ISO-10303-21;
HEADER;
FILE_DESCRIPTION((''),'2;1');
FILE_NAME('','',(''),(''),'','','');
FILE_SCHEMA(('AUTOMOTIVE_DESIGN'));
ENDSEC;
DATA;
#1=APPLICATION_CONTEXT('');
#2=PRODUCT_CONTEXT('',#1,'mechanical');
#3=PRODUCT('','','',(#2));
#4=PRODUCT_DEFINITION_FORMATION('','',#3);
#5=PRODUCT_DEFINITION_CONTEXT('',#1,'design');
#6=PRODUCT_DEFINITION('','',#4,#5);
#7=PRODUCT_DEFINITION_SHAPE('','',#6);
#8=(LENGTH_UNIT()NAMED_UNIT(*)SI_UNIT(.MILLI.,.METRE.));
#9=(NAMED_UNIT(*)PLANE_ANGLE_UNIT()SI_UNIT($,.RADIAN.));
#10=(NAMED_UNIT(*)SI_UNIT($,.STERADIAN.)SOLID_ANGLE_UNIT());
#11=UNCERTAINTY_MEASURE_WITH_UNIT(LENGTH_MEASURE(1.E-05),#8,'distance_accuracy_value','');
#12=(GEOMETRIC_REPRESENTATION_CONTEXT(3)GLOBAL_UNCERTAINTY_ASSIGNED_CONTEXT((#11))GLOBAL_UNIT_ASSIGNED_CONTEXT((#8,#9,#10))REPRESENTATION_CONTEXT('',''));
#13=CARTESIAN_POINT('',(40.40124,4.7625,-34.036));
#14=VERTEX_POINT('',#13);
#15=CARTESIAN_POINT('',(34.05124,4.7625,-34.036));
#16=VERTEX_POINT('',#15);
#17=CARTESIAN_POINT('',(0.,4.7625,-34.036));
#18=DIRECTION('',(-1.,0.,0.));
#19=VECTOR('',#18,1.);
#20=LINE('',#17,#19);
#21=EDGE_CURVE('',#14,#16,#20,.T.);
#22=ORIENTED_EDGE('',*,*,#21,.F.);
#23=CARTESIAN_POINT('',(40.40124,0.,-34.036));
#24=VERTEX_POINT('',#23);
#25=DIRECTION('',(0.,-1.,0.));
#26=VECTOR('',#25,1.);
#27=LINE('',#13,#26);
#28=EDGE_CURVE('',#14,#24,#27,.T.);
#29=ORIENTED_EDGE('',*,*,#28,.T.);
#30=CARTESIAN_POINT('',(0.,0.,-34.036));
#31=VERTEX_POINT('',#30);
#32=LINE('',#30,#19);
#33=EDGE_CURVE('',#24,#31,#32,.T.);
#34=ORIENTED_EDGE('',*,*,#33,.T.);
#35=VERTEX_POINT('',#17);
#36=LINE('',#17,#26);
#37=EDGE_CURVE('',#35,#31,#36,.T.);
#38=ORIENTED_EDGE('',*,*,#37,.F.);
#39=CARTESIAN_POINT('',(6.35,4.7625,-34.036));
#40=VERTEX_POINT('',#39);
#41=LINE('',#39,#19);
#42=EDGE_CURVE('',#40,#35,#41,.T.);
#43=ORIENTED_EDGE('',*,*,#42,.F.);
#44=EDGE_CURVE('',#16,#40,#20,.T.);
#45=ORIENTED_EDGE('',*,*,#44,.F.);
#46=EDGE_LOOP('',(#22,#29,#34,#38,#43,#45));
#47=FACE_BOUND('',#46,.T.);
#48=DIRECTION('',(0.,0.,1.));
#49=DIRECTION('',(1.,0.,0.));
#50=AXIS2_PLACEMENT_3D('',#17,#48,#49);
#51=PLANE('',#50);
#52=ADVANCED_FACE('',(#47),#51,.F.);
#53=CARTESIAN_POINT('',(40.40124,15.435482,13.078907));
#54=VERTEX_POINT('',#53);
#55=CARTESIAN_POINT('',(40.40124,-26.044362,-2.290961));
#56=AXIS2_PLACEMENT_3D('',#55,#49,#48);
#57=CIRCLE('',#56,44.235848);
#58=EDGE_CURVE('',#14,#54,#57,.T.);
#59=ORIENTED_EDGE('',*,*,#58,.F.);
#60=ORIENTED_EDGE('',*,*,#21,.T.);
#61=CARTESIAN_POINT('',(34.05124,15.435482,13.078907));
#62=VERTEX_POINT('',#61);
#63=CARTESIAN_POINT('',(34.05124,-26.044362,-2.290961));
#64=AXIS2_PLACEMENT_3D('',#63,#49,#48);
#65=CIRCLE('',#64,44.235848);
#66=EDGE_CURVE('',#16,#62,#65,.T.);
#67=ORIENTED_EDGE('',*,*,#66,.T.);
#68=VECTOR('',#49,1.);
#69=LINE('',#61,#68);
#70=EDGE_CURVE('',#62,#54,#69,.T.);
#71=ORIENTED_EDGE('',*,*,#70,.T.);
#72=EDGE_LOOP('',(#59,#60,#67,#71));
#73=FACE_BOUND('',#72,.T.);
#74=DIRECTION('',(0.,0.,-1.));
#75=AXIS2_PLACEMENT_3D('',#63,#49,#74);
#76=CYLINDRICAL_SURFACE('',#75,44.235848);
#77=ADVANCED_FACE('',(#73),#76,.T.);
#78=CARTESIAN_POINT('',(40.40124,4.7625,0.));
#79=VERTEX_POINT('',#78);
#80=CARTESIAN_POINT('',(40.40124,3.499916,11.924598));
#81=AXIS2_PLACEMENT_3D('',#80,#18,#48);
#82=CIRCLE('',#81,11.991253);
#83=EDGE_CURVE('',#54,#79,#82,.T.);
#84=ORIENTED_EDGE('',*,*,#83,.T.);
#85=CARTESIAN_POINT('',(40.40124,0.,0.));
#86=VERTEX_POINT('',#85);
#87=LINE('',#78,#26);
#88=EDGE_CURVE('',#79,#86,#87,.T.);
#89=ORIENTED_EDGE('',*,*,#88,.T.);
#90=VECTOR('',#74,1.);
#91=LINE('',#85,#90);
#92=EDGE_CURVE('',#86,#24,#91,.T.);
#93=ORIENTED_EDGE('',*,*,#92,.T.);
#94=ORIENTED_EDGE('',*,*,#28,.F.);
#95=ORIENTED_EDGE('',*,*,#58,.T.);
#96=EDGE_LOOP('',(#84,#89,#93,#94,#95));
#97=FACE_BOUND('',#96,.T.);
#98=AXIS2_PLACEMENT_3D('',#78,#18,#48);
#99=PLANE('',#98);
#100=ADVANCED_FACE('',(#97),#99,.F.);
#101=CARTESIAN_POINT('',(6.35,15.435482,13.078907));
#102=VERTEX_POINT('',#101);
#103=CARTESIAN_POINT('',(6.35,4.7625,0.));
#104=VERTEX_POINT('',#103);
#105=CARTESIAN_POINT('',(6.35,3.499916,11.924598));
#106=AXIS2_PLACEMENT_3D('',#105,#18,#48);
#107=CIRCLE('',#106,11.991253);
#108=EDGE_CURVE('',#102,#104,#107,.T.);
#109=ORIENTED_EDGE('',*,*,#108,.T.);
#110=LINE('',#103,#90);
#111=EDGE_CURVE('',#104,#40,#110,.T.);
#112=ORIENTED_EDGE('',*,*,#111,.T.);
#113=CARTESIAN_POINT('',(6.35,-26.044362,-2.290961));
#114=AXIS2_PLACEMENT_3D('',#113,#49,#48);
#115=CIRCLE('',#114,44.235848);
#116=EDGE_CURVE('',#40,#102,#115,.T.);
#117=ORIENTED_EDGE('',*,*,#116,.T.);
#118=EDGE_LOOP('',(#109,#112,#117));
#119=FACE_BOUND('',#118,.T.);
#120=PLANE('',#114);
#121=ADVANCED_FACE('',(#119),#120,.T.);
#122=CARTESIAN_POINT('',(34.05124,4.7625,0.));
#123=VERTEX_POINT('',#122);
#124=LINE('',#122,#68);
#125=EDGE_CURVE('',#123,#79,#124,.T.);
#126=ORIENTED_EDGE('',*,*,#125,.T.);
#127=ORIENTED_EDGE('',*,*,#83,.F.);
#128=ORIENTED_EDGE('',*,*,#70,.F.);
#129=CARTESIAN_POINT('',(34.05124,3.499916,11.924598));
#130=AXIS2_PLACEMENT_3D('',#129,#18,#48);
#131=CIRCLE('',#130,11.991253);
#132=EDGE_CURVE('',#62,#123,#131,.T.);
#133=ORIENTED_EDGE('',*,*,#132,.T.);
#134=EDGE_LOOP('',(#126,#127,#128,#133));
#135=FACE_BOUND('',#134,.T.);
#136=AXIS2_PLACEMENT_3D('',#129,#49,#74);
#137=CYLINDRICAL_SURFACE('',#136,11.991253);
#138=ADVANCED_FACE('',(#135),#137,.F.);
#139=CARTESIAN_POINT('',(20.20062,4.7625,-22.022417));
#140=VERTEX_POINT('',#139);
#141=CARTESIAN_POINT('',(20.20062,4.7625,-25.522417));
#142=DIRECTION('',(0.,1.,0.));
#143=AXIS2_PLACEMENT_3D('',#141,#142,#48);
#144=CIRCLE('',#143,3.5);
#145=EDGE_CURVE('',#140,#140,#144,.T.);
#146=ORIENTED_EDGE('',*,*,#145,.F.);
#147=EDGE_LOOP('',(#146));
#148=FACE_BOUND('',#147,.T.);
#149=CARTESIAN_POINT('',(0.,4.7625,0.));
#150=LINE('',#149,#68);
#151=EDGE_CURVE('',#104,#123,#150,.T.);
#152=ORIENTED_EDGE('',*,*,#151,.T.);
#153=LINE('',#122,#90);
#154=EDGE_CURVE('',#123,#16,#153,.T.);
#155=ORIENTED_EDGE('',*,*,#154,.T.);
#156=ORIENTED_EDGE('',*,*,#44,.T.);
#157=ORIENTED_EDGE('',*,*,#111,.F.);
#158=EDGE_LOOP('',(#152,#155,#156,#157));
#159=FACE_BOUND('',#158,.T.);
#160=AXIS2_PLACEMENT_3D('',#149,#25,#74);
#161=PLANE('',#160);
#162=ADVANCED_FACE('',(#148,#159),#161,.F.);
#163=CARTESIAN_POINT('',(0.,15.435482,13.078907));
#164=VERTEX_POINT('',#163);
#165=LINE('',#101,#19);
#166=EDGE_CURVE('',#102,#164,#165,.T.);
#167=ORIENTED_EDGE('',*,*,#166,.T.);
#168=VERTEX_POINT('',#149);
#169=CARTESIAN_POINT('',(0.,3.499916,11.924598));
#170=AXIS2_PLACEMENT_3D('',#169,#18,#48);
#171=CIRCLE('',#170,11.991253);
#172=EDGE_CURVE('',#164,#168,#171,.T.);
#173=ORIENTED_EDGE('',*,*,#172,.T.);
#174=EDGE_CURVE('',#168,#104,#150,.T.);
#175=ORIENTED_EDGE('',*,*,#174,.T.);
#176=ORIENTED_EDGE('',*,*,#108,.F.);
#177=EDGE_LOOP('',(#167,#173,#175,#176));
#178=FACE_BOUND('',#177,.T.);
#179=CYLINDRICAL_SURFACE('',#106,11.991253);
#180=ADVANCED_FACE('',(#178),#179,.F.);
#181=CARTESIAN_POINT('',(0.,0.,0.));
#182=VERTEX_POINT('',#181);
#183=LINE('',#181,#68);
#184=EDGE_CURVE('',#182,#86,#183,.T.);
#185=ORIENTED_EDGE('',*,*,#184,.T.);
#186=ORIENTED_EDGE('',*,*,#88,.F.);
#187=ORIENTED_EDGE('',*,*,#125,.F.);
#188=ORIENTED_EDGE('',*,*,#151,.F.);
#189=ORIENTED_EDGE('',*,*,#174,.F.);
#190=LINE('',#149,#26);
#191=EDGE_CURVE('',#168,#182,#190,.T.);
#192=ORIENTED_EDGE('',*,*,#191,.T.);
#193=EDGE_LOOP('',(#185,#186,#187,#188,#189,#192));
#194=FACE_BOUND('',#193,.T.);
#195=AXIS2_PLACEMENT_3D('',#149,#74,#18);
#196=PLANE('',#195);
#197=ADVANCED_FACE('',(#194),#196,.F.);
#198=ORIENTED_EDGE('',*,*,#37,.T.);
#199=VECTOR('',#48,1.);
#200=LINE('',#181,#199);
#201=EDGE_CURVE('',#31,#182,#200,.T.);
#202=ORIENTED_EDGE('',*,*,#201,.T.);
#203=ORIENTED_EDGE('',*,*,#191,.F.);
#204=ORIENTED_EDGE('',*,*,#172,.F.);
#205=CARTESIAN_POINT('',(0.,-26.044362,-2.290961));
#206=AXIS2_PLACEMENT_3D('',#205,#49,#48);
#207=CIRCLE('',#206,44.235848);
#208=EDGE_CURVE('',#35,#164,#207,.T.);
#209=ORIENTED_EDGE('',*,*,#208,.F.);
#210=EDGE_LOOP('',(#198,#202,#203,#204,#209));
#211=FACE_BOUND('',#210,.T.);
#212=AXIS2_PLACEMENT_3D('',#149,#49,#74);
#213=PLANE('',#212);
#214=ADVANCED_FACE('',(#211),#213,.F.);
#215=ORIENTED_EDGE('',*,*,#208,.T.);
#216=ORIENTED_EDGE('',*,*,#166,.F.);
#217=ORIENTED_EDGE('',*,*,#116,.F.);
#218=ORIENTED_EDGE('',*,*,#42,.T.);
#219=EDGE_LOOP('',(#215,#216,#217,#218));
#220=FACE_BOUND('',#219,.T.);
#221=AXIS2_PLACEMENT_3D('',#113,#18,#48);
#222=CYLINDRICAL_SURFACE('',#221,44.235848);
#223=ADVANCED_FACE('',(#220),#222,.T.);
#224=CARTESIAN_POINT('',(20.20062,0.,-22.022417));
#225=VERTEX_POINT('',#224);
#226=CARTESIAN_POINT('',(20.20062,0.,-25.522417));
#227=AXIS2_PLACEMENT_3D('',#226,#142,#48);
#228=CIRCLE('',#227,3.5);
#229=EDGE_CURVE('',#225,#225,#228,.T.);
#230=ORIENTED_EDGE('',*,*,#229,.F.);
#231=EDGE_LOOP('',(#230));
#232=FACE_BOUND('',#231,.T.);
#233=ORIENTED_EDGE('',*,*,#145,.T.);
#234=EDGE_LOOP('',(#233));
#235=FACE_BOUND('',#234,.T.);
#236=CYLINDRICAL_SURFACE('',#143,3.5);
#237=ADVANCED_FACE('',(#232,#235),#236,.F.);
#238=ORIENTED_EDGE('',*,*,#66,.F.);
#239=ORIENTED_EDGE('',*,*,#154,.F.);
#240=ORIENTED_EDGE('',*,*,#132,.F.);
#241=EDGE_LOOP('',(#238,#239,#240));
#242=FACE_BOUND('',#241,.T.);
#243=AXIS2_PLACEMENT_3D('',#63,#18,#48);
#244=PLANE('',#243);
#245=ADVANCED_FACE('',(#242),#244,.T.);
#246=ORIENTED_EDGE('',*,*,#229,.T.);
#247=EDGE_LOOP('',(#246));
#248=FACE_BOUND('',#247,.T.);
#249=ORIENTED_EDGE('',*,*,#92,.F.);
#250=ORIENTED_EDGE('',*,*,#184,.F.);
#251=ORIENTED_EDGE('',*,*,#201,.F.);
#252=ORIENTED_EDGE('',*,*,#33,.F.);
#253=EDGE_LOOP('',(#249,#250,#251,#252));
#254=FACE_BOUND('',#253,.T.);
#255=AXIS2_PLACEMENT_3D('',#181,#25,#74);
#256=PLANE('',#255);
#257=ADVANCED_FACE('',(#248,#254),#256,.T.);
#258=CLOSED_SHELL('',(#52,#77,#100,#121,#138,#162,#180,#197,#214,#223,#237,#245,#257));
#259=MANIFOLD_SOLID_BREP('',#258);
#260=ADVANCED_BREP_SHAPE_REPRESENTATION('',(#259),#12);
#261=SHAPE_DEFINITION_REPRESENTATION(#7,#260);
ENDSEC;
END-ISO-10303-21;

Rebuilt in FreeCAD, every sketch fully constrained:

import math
import FreeCAD as App
import Part
import Sketcher

V = App.Vector
Q = App.Units.Quantity


def add_polygon(sketch, points):
    """Adds a closed chain of lines whose ends are joined by coincident constraints."""
    first, n = sketch.GeometryCount, len(points)
    for a, b in zip(points, points[1:] + points[:1]):
        sketch.addGeometry(Part.LineSegment(App.Vector(*a, 0), App.Vector(*b, 0)), False)
    for i in range(n):
        sketch.addConstraint(Sketcher.Constraint("Coincident", first + i, 2, first + (i + 1) % n, 1))

doc = App.newDocument("Part")
params = doc.addObject("Spreadsheet::Sheet", "Params")
for row, (alias, value) in enumerate([
    ("sketch1_height", "1.34 in"),
    ("pad1_length", "0.1875 in"),
    ("hole_diameter", "7 mm"),
    ("sketch3_height", "1.34 in"),
    ("pad2_length", "0.25 in"),
], start=1):
    params.set(f"A{row}", alias)
    params.set(f"B{row}", "=" + value)
    params.setAlias(f"B{row}", alias)

body = doc.addObject("PartDesign::Body", "Body")

sketch1 = body.newObject("Sketcher::SketchObject", "Sketch")
sketch1.AttachmentSupport = (doc.getObject("XZ_Plane"), [""])
sketch1.MapMode = "FlatFace"
add_polygon(sketch1, [(0, -34), (0, 0), (40.4, 0), (40.4, -34)])
sketch1.addGeometry(Part.Circle(V(20.2, -25.5, 0), V(0, 0, 1), 1.3), False)
sketch1.addConstraint([
    Sketcher.Constraint("Vertical", 0),
    Sketcher.Constraint("Horizontal", 1),
    Sketcher.Constraint("Vertical", 2),
    Sketcher.Constraint("Horizontal", 3),
    Sketcher.Constraint("Coincident", 0, 2, -1, 1),
    Sketcher.Constraint("DistanceY", 0, 1, 0, 2, Q("1.34 in")),
    Sketcher.Constraint("DistanceX", 1, 1, 1, 2, Q("1.5906 in")),
    Sketcher.Constraint("Diameter", 4, Q("2.514576 mm")),
    Sketcher.Constraint("DistanceX", -1, 1, 4, 3, Q("0.7953 in")),
    Sketcher.Constraint("DistanceY", 4, 3, -1, 1, Q("25.522417 mm")),
])
sketch1.setExpression("Constraints[9]", "Params.sketch1_height")
pad1 = body.newObject("PartDesign::Pad", "Pad")
pad1.Profile = sketch1
pad1.setExpression("Length", "Params.pad1_length")
pad1.Reversed = True

sketch2 = body.newObject("Sketcher::SketchObject", "Sketch001")
sketch2.AttachmentSupport = (doc.getObject("XZ_Plane"), [""])
sketch2.MapMode = "FlatFace"
sketch2.AttachmentOffset = App.Placement(V(0, 0, -0.1875 * 25.4), App.Rotation())
sketch2.addGeometry(Part.Circle(V(20.2, -25.5, 0), V(0, 0, 1), 3.5), False)
sketch2.addConstraint([
    Sketcher.Constraint("Diameter", 0, Q("7 mm")),
    Sketcher.Constraint("DistanceX", -1, 1, 0, 3, Q("0.7953 in")),
    Sketcher.Constraint("DistanceY", 0, 3, -1, 1, Q("25.522417 mm")),
])
doc.recompute()
hole = body.newObject("PartDesign::Hole", "Hole")
hole.Profile = sketch2
hole.ThreadType = "None"
hole.setExpression("Diameter", "Params.hole_diameter")
hole.DepthType = "ThroughAll"
hole.Reversed = True

sketch3 = body.newObject("Sketcher::SketchObject", "Sketch002")
sketch3.AttachmentSupport = (doc.getObject("YZ_Plane"), [""])
sketch3.MapMode = "FlatFace"
sketch3.AttachmentOffset = App.Placement(V(0, 0, 1.5906 * 25.4), App.Rotation())
sketch3.addGeometry([
    Part.LineSegment(V(5, 0, 0), V(5, -34, 0)),
    Part.ArcOfCircle(Part.Circle(V(-26, -2, 0), V(0, 0, 1), 44), math.radians(-46), math.radians(20)),
    Part.ArcOfCircle(Part.Circle(V(3, 12, 0), V(0, 0, 1), 12), math.radians(-84), math.radians(6)),
], False)
sketch3.addConstraint([
    Sketcher.Constraint("Coincident", 0, 2, 1, 1),
    Sketcher.Constraint("Coincident", 1, 2, 2, 2),
    Sketcher.Constraint("Coincident", 2, 1, 0, 1),
    Sketcher.Constraint("Vertical", 0),
    Sketcher.Constraint("PointOnObject", 2, 1, -1),
    Sketcher.Constraint("DistanceY", 0, 2, 0, 1, Q("1.34 in")),
    Sketcher.Constraint("DistanceX", -1, 1, 0, 2, Q("0.1875 in")),
    Sketcher.Constraint("Radius", 1, Q("44.235848 mm")),
    Sketcher.Constraint("Radius", 2, Q("11.991253 mm")),
    Sketcher.Constraint("DistanceX", 1, 3, -1, 1, Q("26.044362 mm")),
    Sketcher.Constraint("DistanceX", -1, 1, 1, 2, Q("15.435482 mm")),
])
sketch3.setExpression("Constraints[5]", "Params.sketch3_height")
pad2 = body.newObject("PartDesign::Pad", "Pad001")
pad2.Profile = sketch3
pad2.setExpression("Length", "Params.pad2_length")
pad2.Reversed = True
doc.recompute()

datumplane = body.newObject("PartDesign::Plane", "DatumPlane")
datumplane.AttachmentSupport = (doc.getObject("YZ_Plane"), [""])
datumplane.MapMode = "FlatFace"
datumplane.AttachmentOffset = App.Placement(V(0, 0, 0.7953 * 25.4), App.Rotation())
mirrored = body.newObject("PartDesign::Mirrored", "Mirrored")
mirrored.Originals = [pad2]
mirrored.MirrorPlane = (datumplane, [""])
body.Tip = mirrored

doc.recompute()
